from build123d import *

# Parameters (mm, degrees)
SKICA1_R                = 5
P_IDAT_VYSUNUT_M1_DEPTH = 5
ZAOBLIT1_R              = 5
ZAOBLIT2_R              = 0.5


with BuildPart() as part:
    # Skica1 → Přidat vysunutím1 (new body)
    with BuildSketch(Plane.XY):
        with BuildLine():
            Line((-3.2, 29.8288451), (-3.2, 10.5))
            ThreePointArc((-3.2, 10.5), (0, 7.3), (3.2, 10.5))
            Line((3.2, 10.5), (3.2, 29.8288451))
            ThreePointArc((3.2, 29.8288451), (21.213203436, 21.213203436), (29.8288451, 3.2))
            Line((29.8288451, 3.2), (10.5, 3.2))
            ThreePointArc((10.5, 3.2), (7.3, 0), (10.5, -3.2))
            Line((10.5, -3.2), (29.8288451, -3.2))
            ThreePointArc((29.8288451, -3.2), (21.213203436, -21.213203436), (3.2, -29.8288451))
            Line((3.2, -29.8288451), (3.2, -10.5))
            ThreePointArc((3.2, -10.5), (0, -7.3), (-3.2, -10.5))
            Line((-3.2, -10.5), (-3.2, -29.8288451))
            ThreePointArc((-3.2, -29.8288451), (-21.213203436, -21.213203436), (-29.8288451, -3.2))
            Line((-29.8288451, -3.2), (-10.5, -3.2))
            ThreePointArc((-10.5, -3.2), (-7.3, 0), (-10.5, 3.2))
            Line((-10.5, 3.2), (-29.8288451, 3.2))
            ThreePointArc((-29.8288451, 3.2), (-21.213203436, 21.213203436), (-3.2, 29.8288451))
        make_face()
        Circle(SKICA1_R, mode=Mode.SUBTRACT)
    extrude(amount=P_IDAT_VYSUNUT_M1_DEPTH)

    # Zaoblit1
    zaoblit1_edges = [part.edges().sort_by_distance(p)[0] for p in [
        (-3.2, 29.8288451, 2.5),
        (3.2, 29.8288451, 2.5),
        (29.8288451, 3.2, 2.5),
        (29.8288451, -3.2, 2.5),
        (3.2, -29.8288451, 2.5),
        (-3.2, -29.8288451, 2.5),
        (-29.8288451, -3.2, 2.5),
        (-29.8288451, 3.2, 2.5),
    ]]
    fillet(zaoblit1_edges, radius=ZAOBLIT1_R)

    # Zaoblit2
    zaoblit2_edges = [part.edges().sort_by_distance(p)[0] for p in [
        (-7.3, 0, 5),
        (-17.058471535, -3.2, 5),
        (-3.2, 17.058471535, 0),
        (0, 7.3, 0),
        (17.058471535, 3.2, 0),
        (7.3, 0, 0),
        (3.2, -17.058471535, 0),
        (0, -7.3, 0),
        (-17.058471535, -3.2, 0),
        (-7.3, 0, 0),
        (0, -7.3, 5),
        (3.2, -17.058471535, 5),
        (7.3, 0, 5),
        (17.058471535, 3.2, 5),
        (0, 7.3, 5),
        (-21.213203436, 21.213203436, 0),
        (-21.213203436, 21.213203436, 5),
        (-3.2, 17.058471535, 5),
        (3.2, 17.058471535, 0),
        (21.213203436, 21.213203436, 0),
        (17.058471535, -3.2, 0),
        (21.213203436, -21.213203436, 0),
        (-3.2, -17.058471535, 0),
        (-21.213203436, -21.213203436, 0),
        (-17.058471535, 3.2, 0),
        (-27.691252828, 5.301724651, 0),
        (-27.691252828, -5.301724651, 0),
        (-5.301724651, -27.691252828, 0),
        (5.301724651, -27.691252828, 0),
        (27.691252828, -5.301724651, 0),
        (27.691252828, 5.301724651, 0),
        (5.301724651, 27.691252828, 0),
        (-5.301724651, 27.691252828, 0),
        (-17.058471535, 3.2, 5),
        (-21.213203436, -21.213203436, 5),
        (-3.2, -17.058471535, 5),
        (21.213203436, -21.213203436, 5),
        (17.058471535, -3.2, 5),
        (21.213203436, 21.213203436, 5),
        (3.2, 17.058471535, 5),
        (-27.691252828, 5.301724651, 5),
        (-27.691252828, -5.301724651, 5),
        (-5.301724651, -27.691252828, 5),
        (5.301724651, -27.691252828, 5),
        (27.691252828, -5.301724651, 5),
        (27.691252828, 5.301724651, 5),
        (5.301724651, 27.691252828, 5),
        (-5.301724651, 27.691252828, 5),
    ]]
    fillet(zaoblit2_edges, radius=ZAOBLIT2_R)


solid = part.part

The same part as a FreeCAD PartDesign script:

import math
import FreeCAD as App
import Part
import Sketcher

V = App.Vector


def edges_at(feature, points):
    """Names of the edges that pass closest to the given points."""
    edges = feature.Shape.Edges
    near = lambda p: min(range(len(edges)), key=lambda i: edges[i].distToShape(Part.Vertex(*p))[0])
    return sorted({f"Edge{near(p) + 1}" for p in points})

doc = App.newDocument("Part")
body = doc.addObject("PartDesign::Body", "Body")

sketch1 = body.newObject("Sketcher::SketchObject", "Sketch")
sketch1.AttachmentSupport = (doc.getObject("XY_Plane"), [""])
sketch1.MapMode = "FlatFace"
sketch1.addGeometry([
    Part.LineSegment(V(-3.2, 10.5, 0), V(-3.2, 29.8, 0)),
    Part.ArcOfCircle(Part.Circle(V(0, 0, 0), V(0, 0, 1), 30), math.radians(96), math.radians(174)),
    Part.LineSegment(V(-29.8, 3.2, 0), V(-10.5, 3.2, 0)),
    Part.ArcOfCircle(Part.Circle(V(-10.5, 0, 0), V(0, 0, 1), 3.2), math.radians(-90), math.radians(90)),
    Part.LineSegment(V(-10.5, -3.2, 0), V(-29.8, -3.2, 0)),
    Part.ArcOfCircle(Part.Circle(V(0, 0, 0), V(0, 0, 1), 30), math.radians(-174), math.radians(-96)),
    Part.LineSegment(V(-3.2, -29.8, 0), V(-3.2, -10.5, 0)),
    Part.ArcOfCircle(Part.Circle(V(0, -10.5, 0), V(0, 0, 1), 3.2), math.radians(0), math.radians(180)),
    Part.LineSegment(V(3.2, -10.5, 0), V(3.2, -29.8, 0)),
    Part.ArcOfCircle(Part.Circle(V(0, 0, 0), V(0, 0, 1), 30), math.radians(-84), math.radians(-6)),
    Part.LineSegment(V(29.8, -3.2, 0), V(10.5, -3.2, 0)),
    Part.ArcOfCircle(Part.Circle(V(10.5, 0, 0), V(0, 0, 1), 3.2), math.radians(90), math.radians(270)),
    Part.LineSegment(V(10.5, 3.2, 0), V(29.8, 3.2, 0)),
    Part.ArcOfCircle(Part.Circle(V(0, 0, 0), V(0, 0, 1), 30), math.radians(6), math.radians(84)),
    Part.LineSegment(V(3.2, 29.8, 0), V(3.2, 10.5, 0)),
    Part.ArcOfCircle(Part.Circle(V(0, 10.5, 0), V(0, 0, 1), 3.2), math.radians(180), math.radians(360)),
    Part.Circle(V(0, 0, 0), V(0, 0, 1), 5),
], False)
sketch1.addConstraint([
    Sketcher.Constraint("Coincident", 0, 2, 1, 1),
    Sketcher.Constraint("Coincident", 1, 2, 2, 1),
    Sketcher.Constraint("Tangent", 2, 2, 3, 2),
    Sketcher.Constraint("Tangent", 3, 1, 4, 1),
    Sketcher.Constraint("Coincident", 4, 2, 5, 1),
    Sketcher.Constraint("Coincident", 5, 2, 6, 1),
    Sketcher.Constraint("Tangent", 6, 2, 7, 2),
    Sketcher.Constraint("Tangent", 7, 1, 8, 1),
    Sketcher.Constraint("Coincident", 8, 2, 9, 1),
    Sketcher.Constraint("Coincident", 9, 2, 10, 1),
    Sketcher.Constraint("Tangent", 10, 2, 11, 2),
    Sketcher.Constraint("Tangent", 11, 1, 12, 1),
    Sketcher.Constraint("Coincident", 12, 2, 13, 1),
    Sketcher.Constraint("Coincident", 13, 2, 14, 1),
    Sketcher.Constraint("Tangent", 14, 2, 15, 2),
    Sketcher.Constraint("Tangent", 15, 1, 0, 1),
    Sketcher.Constraint("Vertical", 0),
    Sketcher.Constraint("Horizontal", 2),
    Sketcher.Constraint("Horizontal", 4),
    Sketcher.Constraint("Vertical", 6),
    Sketcher.Constraint("Vertical", 8),
    Sketcher.Constraint("Horizontal", 10),
    Sketcher.Constraint("Horizontal", 12),
    Sketcher.Constraint("Vertical", 14),
    Sketcher.Constraint("Coincident", 1, 3, -1, 1),
    Sketcher.Constraint("Coincident", 5, 3, -1, 1),
    Sketcher.Constraint("Coincident", 9, 3, -1, 1),
    Sketcher.Constraint("Coincident", 13, 3, -1, 1),
    Sketcher.Constraint("Coincident", 16, 3, -1, 1),
    Sketcher.Constraint("Equal", 1, 5),
    Sketcher.Constraint("Equal", 3, 7),
    Sketcher.Constraint("Equal", 5, 9),
    Sketcher.Constraint("Equal", 7, 11),
    Sketcher.Constraint("Equal", 9, 13),
    Sketcher.Constraint("Equal", 11, 15),
    Sketcher.Constraint("Symmetric", 3, 3, 11, 3, -1, 1),
    Sketcher.Constraint("Symmetric", 7, 3, 15, 3, -1, 1),
    Sketcher.Constraint("PointOnObject", 3, 3, -1),
    Sketcher.Constraint("PointOnObject", 7, 3, -2),
    Sketcher.Constraint("Equal", 12, 0),
    Sketcher.Constraint("Diameter", 16, 10.0),
    Sketcher.Constraint("Radius", 1, 30.0),
    Sketcher.Constraint("Radius", 3, 3.2),
    Sketcher.Constraint("DistanceX", 3, 3, 11, 3, 21.0),
])
pad1 = body.newObject("PartDesign::Pad", "Pad")
pad1.Profile = sketch1
pad1.Length = 5
doc.recompute()

fillet = body.newObject("PartDesign::Fillet", "Fillet")
fillet.Base = (pad1, edges_at(pad1, [
    (-3.2, 29.829, 2.5),
    (3.2, 29.829, 2.5),
    (29.829, 3.2, 2.5),
    (29.829, -3.2, 2.5),
    (3.2, -29.829, 2.5),
    (-3.2, -29.829, 2.5),
    (-29.829, -3.2, 2.5),
    (-29.829, 3.2, 2.5),
]))
fillet.Radius = 5
doc.recompute()

fillet2 = body.newObject("PartDesign::Fillet", "Fillet001")
fillet2.Base = (fillet, edges_at(fillet, [
    (-7.3, 0, 5),
    (-17.058, -3.2, 5),
    (-3.2, 17.058, 0),
    (0, 7.3, 0),
    (17.058, 3.2, 0),
    (7.3, 0, 0),
    (3.2, -17.058, 0),
    (0, -7.3, 0),
    (-17.058, -3.2, 0),
    (-7.3, 0, 0),
    (0, -7.3, 5),
    (3.2, -17.058, 5),
    (7.3, 0, 5),
    (17.058, 3.2, 5),
    (0, 7.3, 5),
    (-21.213, 21.213, 0),
    (-21.213, 21.213, 5),
    (-3.2, 17.058, 5),
    (3.2, 17.058, 0),
    (21.213, 21.213, 0),
    (17.058, -3.2, 0),
    (21.213, -21.213, 0),
    (-3.2, -17.058, 0),
    (-21.213, -21.213, 0),
    (-17.058, 3.2, 0),
    (-27.691, 5.302, 0),
    (-27.691, -5.302, 0),
    (-5.302, -27.691, 0),
    (5.302, -27.691, 0),
    (27.691, -5.302, 0),
    (27.691, 5.302, 0),
    (5.302, 27.691, 0),
    (-5.302, 27.691, 0),
    (-17.058, 3.2, 5),
    (-21.213, -21.213, 5),
    (-3.2, -17.058, 5),
    (21.213, -21.213, 5),
    (17.058, -3.2, 5),
    (21.213, 21.213, 5),
    (3.2, 17.058, 5),
    (-27.691, 5.302, 5),
    (-27.691, -5.302, 5),
    (-5.302, -27.691, 5),
    (5.302, -27.691, 5),
    (27.691, -5.302, 5),
    (27.691, 5.302, 5),
    (5.302, 27.691, 5),
    (-5.302, 27.691, 5),
]))
fillet2.Radius = 0.5

doc.recompute()
